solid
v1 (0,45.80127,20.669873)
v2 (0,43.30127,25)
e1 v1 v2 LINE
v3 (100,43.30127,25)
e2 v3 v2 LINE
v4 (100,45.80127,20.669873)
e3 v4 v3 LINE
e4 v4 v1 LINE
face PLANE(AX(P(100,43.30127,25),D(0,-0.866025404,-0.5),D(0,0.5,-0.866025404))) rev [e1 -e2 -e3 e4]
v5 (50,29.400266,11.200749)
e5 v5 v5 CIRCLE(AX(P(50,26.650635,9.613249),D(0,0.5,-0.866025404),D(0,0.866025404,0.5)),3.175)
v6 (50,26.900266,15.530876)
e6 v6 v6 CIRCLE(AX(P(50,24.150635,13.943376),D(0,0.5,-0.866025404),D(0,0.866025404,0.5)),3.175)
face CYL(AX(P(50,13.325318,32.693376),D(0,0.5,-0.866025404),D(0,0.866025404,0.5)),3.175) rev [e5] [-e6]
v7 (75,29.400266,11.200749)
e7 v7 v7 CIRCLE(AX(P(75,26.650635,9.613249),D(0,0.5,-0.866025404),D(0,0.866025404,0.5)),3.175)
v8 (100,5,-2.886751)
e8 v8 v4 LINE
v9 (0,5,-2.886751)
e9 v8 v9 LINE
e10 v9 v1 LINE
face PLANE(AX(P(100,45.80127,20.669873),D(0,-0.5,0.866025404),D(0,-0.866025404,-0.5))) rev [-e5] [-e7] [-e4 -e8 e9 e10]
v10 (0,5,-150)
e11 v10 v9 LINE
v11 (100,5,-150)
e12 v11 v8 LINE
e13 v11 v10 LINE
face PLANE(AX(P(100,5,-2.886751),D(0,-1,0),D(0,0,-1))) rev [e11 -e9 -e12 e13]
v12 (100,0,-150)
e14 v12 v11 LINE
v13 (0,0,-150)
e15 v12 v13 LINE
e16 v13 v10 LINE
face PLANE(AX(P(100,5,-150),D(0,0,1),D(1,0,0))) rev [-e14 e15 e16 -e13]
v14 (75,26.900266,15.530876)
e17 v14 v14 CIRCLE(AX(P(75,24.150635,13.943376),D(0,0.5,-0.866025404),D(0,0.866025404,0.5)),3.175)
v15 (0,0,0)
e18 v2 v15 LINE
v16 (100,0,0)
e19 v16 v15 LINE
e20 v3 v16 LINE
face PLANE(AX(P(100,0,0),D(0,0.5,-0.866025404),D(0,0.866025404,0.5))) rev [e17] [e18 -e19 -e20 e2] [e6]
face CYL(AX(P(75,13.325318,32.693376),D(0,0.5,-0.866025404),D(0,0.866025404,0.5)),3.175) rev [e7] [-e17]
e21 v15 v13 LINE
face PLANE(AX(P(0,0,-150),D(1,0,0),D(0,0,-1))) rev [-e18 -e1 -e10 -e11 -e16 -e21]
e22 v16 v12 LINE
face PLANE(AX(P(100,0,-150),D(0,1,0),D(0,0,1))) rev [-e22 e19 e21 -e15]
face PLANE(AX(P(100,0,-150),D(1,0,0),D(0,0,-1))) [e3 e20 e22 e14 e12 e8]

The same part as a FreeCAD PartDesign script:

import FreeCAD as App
import Part
import Sketcher
Q = App.Units.Quantity


def add_polygon(sketch, points):
    """Adds a closed chain of lines whose ends are joined by coincident constraints."""
    first, n = sketch.GeometryCount, len(points)
    for a, b in zip(points, points[1:] + points[:1]):
        sketch.addGeometry(Part.LineSegment(App.Vector(*a, 0), App.Vector(*b, 0)), False)
    for i in range(n):
        sketch.addConstraint(Sketcher.Constraint("Coincident", first + i, 2, first + (i + 1) % n, 1))

doc = App.newDocument("Part")
body = doc.addObject("PartDesign::Body", "Body")

# Sketch on YZ plane
sketch1 = body.newObject("Sketcher::SketchObject", "Sketch")
sketch1.AttachmentSupport = (doc.getObject("YZ_Plane"), [""])
sketch1.MapMode = "FlatFace"
add_polygon(sketch1, [(43, 25), (0, 0), (0, -150), (5, -150), (5, -3), (46, 21)])  # lines 0-5
sketch1.addConstraint(Sketcher.Constraint("Vertical", 1))
sketch1.addConstraint(Sketcher.Constraint("Horizontal", 2))
sketch1.addConstraint(Sketcher.Constraint("Vertical", 3))
sketch1.addConstraint(Sketcher.Constraint("Coincident", 0, 2, -1, 1))
sketch1.addConstraint(Sketcher.Constraint("Parallel", 0, 4))
sketch1.addConstraint(Sketcher.Constraint("Perpendicular", 4, 5))
sketch1.addConstraint(Sketcher.Constraint("DistanceX", 2, 1, 2, 2, Q("5 mm")))
sketch1.addConstraint(Sketcher.Constraint("DistanceY", 1, 2, 1, 1, Q("150 mm")))
sketch1.addConstraint(Sketcher.Constraint("Angle", 0, Q("-150 deg")))
sketch1.addConstraint(Sketcher.Constraint("Distance", 0, Q("50 mm")))
sketch1.addConstraint(Sketcher.Constraint("Distance", 5, Q("5 mm")))
pad1 = body.newObject("PartDesign::Pad", "Pad")
pad1.Profile = sketch1
pad1.Length = 100

# Sketch on an angled plane
sketch2 = body.newObject("Sketcher::SketchObject", "Sketch001")
sketch2.Placement = App.Placement(App.Vector(0, 2.5, -4.330127), App.Rotation(App.Vector(-1, 0, 0), App.Vector(0, 0.866025404, 0.5), App.Vector(0, 0.5, -0.866025404), "ZXY"))
sketch2.addGeometry(Part.Circle(App.Vector(-75, 27.9, 0), App.Vector(0, 0, 1), 3.2), False)
sketch2.addGeometry(Part.Circle(App.Vector(-50, 27.9, 0), App.Vector(0, 0, 1), 3.2), False)
sketch2.addConstraint(Sketcher.Constraint("Equal", 0, 1))
sketch2.addConstraint(Sketcher.Constraint("Horizontal", 0, 3, 1, 3))
sketch2.addConstraint(Sketcher.Constraint("Diameter", 0, Q("6.35 mm")))
sketch2.addConstraint(Sketcher.Constraint("DistanceX", 0, 3, -1, 1, Q("75 mm")))
sketch2.addConstraint(Sketcher.Constraint("DistanceX", 1, 3, -1, 1, Q("50 mm")))
sketch2.addConstraint(Sketcher.Constraint("DistanceY", -1, 1, 0, 3, Q("27.886751 mm")))
pocket1 = body.newObject("PartDesign::Pocket", "Pocket")
pocket1.Profile = sketch2
pocket1.Type = "ThroughAll"

doc.recompute()
